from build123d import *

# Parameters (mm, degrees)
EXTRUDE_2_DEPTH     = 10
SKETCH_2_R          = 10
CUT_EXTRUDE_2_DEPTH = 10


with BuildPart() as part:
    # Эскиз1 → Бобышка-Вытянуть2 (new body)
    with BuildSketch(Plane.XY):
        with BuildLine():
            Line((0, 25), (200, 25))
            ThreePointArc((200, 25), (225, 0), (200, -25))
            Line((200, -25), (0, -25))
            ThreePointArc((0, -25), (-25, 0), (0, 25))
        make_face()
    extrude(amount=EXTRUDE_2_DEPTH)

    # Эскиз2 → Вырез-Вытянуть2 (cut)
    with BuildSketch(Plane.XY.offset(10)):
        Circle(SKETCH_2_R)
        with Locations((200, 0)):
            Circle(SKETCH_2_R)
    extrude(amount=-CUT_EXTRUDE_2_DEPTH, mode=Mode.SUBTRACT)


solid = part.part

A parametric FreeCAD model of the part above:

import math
import FreeCAD as App
import Part
import Sketcher

V = App.Vector

doc = App.newDocument("Part")
body = doc.addObject("PartDesign::Body", "Body")

sketch1 = doc.addObject("Sketcher::SketchObject", "Sketch")
body.addObject(sketch1)
sketch1.AttachmentSupport = (doc.XY_Plane, [""])
sketch1.MapMode = "FlatFace"
sketch1.addGeometry(Part.LineSegment(V(200, 25, 0), V(0, 25, 0)), False)
sketch1.addGeometry(Part.ArcOfCircle(Part.Circle(V(0, 0, 0), V(0, 0, 1), 25), math.radians(90), math.radians(270)), False)
sketch1.addGeometry(Part.LineSegment(V(0, -25, 0), V(200, -25, 0)), False)
sketch1.addGeometry(Part.ArcOfCircle(Part.Circle(V(200, 0, 0), V(0, 0, 1), 25), math.radians(-90), math.radians(90)), False)
sketch1.addConstraint(Sketcher.Constraint("Tangent", 0, 2, 1, 1))
sketch1.addConstraint(Sketcher.Constraint("Tangent", 1, 2, 2, 1))
sketch1.addConstraint(Sketcher.Constraint("Tangent", 2, 2, 3, 1))
sketch1.addConstraint(Sketcher.Constraint("Tangent", 3, 2, 0, 1))
sketch1.addConstraint(Sketcher.Constraint("Horizontal", 0))
sketch1.addConstraint(Sketcher.Constraint("Horizontal", 2))
sketch1.addConstraint(Sketcher.Constraint("Coincident", 1, 3, -1, 1))
sketch1.addConstraint(Sketcher.Constraint("Radius", 1, 25.0))
sketch1.addConstraint(Sketcher.Constraint("DistanceX", 0, 2, 0, 1, 200.0))
pad1 = doc.addObject("PartDesign::Pad", "Pad")
body.addObject(pad1)
pad1.Profile = sketch1
pad1.Length = 10

sketch2 = doc.addObject("Sketcher::SketchObject", "Sketch001")
body.addObject(sketch2)
sketch2.AttachmentSupport = (doc.XY_Plane, [""])
sketch2.MapMode = "FlatFace"
sketch2.AttachmentOffset = App.Placement(V(0, 0, 10), App.Rotation())
sketch2.addGeometry(Part.Circle(V(0, 0, 0), V(0, 0, 1), 10), False)
sketch2.addGeometry(Part.Circle(V(200, 0, 0), V(0, 0, 1), 10), False)
sketch2.addConstraint(Sketcher.Constraint("Coincident", 0, 3, -1, 1))
sketch2.addConstraint(Sketcher.Constraint("Equal", 0, 1))
sketch2.addConstraint(Sketcher.Constraint("PointOnObject", 1, 3, -1))
sketch2.addConstraint(Sketcher.Constraint("Diameter", 0, 20.0))
sketch2.addConstraint(Sketcher.Constraint("DistanceX", -1, 1, 1, 3, 200.0))
pocket1 = doc.addObject("PartDesign::Pocket", "Pocket")
body.addObject(pocket1)
pocket1.Profile = sketch2
pocket1.Length = 10

doc.recompute()
